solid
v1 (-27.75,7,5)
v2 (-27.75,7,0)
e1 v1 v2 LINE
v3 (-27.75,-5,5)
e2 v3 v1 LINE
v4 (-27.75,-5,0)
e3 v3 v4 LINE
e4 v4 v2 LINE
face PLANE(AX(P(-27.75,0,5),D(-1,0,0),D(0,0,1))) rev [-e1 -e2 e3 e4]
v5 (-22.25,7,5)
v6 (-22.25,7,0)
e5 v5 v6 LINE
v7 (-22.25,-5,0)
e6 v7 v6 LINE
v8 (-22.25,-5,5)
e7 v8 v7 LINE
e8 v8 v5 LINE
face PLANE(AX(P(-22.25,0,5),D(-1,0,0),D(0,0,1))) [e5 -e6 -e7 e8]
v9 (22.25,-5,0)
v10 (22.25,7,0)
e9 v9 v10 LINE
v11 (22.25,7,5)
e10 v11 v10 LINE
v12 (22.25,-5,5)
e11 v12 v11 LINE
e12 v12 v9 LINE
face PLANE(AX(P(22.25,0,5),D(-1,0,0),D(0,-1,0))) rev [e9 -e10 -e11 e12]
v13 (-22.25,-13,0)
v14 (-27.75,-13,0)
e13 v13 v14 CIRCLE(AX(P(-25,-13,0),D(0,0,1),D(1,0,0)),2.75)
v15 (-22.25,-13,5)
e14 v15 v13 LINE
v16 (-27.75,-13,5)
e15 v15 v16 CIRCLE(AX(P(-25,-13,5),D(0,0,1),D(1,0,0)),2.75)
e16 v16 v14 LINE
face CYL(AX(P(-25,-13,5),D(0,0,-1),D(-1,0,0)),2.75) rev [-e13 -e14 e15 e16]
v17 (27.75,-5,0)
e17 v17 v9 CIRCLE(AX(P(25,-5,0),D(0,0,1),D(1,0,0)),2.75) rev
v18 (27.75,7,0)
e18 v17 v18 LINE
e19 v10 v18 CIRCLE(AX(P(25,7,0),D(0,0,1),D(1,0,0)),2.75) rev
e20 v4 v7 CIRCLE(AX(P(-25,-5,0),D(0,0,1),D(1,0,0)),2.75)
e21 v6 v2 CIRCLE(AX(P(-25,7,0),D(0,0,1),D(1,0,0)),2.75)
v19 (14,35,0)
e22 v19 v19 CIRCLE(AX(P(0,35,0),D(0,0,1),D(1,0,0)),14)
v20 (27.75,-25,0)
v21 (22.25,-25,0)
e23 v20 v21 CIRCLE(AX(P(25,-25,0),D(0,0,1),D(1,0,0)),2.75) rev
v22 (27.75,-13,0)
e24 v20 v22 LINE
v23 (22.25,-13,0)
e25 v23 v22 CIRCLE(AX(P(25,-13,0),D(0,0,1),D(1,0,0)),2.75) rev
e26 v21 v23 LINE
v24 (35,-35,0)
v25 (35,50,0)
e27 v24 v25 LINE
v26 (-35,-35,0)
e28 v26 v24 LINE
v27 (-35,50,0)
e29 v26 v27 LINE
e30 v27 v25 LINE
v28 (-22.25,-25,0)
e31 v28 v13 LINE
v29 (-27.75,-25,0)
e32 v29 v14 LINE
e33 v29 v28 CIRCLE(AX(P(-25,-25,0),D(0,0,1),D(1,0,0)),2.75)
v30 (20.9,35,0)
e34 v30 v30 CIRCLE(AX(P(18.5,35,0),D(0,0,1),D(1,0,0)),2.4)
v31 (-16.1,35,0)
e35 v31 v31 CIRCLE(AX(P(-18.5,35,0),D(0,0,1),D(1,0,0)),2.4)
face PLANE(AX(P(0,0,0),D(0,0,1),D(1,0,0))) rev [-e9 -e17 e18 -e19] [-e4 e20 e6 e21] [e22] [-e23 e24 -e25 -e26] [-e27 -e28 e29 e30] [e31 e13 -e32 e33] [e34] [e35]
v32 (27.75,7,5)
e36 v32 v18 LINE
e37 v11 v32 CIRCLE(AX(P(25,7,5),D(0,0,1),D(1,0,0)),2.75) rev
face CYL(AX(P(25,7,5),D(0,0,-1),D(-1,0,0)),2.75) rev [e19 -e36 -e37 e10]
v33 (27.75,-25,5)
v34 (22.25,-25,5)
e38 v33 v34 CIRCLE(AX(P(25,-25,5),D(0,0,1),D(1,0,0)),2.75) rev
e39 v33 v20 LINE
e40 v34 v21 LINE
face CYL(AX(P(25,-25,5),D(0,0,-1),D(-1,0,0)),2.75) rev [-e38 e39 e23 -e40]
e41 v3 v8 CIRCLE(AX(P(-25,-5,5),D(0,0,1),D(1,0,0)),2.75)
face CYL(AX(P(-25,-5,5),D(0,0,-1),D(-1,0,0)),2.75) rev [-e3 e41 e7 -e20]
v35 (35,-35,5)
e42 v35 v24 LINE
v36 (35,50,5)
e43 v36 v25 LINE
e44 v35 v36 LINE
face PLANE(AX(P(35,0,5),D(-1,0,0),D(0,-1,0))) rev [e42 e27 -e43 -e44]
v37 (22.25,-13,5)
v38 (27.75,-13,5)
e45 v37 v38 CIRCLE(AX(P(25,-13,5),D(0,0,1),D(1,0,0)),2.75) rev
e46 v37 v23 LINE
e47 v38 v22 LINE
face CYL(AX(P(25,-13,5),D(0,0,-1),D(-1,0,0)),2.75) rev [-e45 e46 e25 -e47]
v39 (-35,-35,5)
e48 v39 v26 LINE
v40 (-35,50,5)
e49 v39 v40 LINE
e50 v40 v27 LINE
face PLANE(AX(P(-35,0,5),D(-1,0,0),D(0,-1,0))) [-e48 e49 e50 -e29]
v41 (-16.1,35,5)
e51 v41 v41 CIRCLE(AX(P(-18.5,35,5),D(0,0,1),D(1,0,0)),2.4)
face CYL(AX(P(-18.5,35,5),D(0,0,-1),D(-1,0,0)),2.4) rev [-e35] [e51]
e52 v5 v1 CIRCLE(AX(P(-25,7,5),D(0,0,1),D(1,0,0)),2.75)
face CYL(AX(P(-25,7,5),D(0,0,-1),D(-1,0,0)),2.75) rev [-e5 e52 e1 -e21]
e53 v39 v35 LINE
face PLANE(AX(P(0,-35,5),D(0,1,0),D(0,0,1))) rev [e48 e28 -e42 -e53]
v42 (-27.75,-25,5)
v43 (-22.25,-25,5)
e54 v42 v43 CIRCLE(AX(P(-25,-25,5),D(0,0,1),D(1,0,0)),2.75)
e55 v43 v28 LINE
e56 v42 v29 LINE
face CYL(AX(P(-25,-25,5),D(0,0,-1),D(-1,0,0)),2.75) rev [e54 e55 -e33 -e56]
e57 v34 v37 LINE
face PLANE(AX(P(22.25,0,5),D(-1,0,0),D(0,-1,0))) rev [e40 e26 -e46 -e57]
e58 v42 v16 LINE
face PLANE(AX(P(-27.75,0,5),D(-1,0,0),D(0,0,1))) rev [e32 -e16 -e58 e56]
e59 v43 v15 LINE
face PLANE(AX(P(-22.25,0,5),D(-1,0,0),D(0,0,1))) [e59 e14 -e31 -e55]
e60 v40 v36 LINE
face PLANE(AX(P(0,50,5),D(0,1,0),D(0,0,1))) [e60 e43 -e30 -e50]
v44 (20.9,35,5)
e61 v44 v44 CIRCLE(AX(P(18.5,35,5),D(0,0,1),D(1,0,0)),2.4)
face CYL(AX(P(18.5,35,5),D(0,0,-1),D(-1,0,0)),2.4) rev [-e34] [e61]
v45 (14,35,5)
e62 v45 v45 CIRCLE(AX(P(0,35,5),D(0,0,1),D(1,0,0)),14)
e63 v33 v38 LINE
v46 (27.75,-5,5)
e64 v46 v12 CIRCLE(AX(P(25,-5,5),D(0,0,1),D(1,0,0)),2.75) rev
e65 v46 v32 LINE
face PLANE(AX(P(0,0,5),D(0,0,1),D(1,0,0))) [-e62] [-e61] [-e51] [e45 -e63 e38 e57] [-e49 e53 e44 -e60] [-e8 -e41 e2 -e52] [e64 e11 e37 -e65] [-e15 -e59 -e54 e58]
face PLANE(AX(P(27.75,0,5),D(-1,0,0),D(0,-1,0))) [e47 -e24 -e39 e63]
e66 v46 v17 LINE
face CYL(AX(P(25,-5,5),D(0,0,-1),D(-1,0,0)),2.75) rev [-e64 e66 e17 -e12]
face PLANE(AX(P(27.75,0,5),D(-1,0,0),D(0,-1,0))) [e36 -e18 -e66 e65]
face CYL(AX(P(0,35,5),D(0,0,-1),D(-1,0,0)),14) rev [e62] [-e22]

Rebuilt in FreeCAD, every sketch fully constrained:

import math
import FreeCAD as App
import Part
import Sketcher
from FreeCAD import Vector

doc = App.newDocument("Part")
body = doc.addObject("PartDesign::Body", "Body")

# Sketch on XY plane
sketch1 = body.newObject("Sketcher::SketchObject", "Sketch")
sketch1.AttachmentSupport = (doc.getObject("XY_Plane"), [""])
sketch1.MapMode = "FlatFace"
sketch1.addGeometry([
    Part.LineSegment(Vector(-35, 50, 0), Vector(-35, -35, 0)),  # 0
    Part.LineSegment(Vector(-35, -35, 0), Vector(35, -35, 0)),  # 1
    Part.LineSegment(Vector(35, -35, 0), Vector(35, 50, 0)),  # 2
    Part.LineSegment(Vector(35, 50, 0), Vector(-35, 50, 0)),  # 3
    Part.LineSegment(Vector(-22.25, -13, 0), Vector(-22.25, -25, 0)),  # 4
    Part.ArcOfCircle(Part.Circle(Vector(-25, -25, 0), Vector(0, 0, 1), 2.75), math.radians(180), math.radians(360)),  # 5
    Part.LineSegment(Vector(-27.75, -25, 0), Vector(-27.75, -13, 0)),  # 6
    Part.ArcOfCircle(Part.Circle(Vector(-25, -13, 0), Vector(0, 0, 1), 2.75), math.radians(0), math.radians(180)),  # 7
    Part.LineSegment(Vector(-22.25, 7, 0), Vector(-22.25, -5, 0)),  # 8
    Part.ArcOfCircle(Part.Circle(Vector(-25, -5, 0), Vector(0, 0, 1), 2.75), math.radians(180), math.radians(360)),  # 9
    Part.LineSegment(Vector(-27.75, -5, 0), Vector(-27.75, 7, 0)),  # 10
    Part.ArcOfCircle(Part.Circle(Vector(-25, 7, 0), Vector(0, 0, 1), 2.75), math.radians(0), math.radians(180)),  # 11
    Part.ArcOfCircle(Part.Circle(Vector(25, -13, 0), Vector(0, 0, 1), 2.75), math.radians(0), math.radians(180)),  # 12
    Part.LineSegment(Vector(27.75, -13, 0), Vector(27.75, -25, 0)),  # 13
    Part.ArcOfCircle(Part.Circle(Vector(25, -25, 0), Vector(0, 0, 1), 2.75), math.radians(180), math.radians(360)),  # 14
    Part.LineSegment(Vector(22.25, -25, 0), Vector(22.25, -13, 0)),  # 15
    Part.ArcOfCircle(Part.Circle(Vector(25, 7, 0), Vector(0, 0, 1), 2.75), math.radians(0), math.radians(180)),  # 16
    Part.LineSegment(Vector(27.75, 7, 0), Vector(27.75, -5, 0)),  # 17
    Part.ArcOfCircle(Part.Circle(Vector(25, -5, 0), Vector(0, 0, 1), 2.75), math.radians(180), math.radians(360)),  # 18
    Part.LineSegment(Vector(22.25, -5, 0), Vector(22.25, 7, 0)),  # 19
    Part.Circle(Vector(-18.5, 35, 0), Vector(0, 0, 1), 2.4),  # 20
    Part.Circle(Vector(0, 35, 0), Vector(0, 0, 1), 14),  # 21
    Part.Circle(Vector(18.5, 35, 0), Vector(0, 0, 1), 2.4),  # 22
], False)
sketch1.addConstraint([
    Sketcher.Constraint("Coincident", 0, 2, 1, 1),
    Sketcher.Constraint("Coincident", 1, 2, 2, 1),
    Sketcher.Constraint("Coincident", 2, 2, 3, 1),
    Sketcher.Constraint("Coincident", 3, 2, 0, 1),
    Sketcher.Constraint("Tangent", 4, 2, 5, 2),
    Sketcher.Constraint("Tangent", 5, 1, 6, 1),
    Sketcher.Constraint("Tangent", 6, 2, 7, 2),
    Sketcher.Constraint("Tangent", 7, 1, 4, 1),
    Sketcher.Constraint("Tangent", 8, 2, 9, 2),
    Sketcher.Constraint("Tangent", 9, 1, 10, 1),
    Sketcher.Constraint("Tangent", 10, 2, 11, 2),
    Sketcher.Constraint("Tangent", 11, 1, 8, 1),
    Sketcher.Constraint("Tangent", 12, 1, 13, 1),
    Sketcher.Constraint("Tangent", 13, 2, 14, 2),
    Sketcher.Constraint("Tangent", 14, 1, 15, 1),
    Sketcher.Constraint("Tangent", 15, 2, 12, 2),
    Sketcher.Constraint("Tangent", 16, 1, 17, 1),
    Sketcher.Constraint("Tangent", 17, 2, 18, 2),
    Sketcher.Constraint("Tangent", 18, 1, 19, 1),
    Sketcher.Constraint("Tangent", 19, 2, 16, 2),
    Sketcher.Constraint("Vertical", 0),
    Sketcher.Constraint("Horizontal", 1),
    Sketcher.Constraint("Vertical", 2),
    Sketcher.Constraint("Horizontal", 3),
    Sketcher.Constraint("Vertical", 4),
    Sketcher.Constraint("Vertical", 6),
    Sketcher.Constraint("Vertical", 8),
    Sketcher.Constraint("Vertical", 10),
    Sketcher.Constraint("Vertical", 13),
    Sketcher.Constraint("Vertical", 15),
    Sketcher.Constraint("Vertical", 17),
    Sketcher.Constraint("Vertical", 19),
    Sketcher.Constraint("Equal", 7, 9),
    Sketcher.Constraint("Equal", 11, 12),
    Sketcher.Constraint("Equal", 14, 16),
    Sketcher.Constraint("Equal", 20, 22),
    Sketcher.Constraint("Symmetric", 7, 3, 12, 3, -2),
    Sketcher.Constraint("Symmetric", 11, 3, 16, 3, -2),
    Sketcher.Constraint("Symmetric", 20, 3, 22, 3, -2),
    Sketcher.Constraint("PointOnObject", 21, 3, -2),
    Sketcher.Constraint("Horizontal", 5, 3, 14, 3),
    Sketcher.Constraint("Horizontal", 9, 3, 18, 3),
    Sketcher.Constraint("Horizontal", 20, 3, 21, 3),
    Sketcher.Constraint("Vertical", 7, 3, 9, 3),
    Sketcher.Constraint("Equal", 6, 8),
    Sketcher.Constraint("Diameter", 21, 28.0),
    Sketcher.Constraint("Diameter", 20, 4.8),
    Sketcher.Constraint("DistanceX", 1, 1, 1, 2, 70.0),
    Sketcher.Constraint("DistanceY", 0, 2, 0, 1, 85.0),
    Sketcher.Constraint("DistanceY", 4, 2, 4, 1, 12.0),
    Sketcher.Constraint("Radius", 5, 2.75),
    Sketcher.Constraint("DistanceX", 5, 3, -1, 1, 25.0),
    Sketcher.Constraint("DistanceY", 5, 3, -1, 1, 25.0),
    Sketcher.Constraint("DistanceY", 9, 3, -1, 1, 5.0),
    Sketcher.Constraint("DistanceY", -1, 1, 20, 3, 35.0),
    Sketcher.Constraint("DistanceX", 0, 2, -1, 1, 35.0),
    Sketcher.Constraint("DistanceY", 0, 2, -1, 1, 35.0),
    Sketcher.Constraint("DistanceX", 20, 3, 22, 3, 37.0),
])
pad1 = body.newObject("PartDesign::Pad", "Pad")
pad1.Profile = sketch1
pad1.Length = 5

doc.recompute()
